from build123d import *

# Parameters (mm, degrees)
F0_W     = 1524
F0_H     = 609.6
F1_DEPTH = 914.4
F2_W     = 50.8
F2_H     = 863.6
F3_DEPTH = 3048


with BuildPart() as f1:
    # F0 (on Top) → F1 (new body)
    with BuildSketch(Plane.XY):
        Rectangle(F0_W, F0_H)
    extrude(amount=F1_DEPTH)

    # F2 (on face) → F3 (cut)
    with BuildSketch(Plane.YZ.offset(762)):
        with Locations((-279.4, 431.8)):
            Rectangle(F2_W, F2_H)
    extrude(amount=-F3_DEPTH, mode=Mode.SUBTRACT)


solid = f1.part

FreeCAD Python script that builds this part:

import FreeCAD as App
import Part
import Sketcher

V = App.Vector
Q = App.Units.Quantity


def add_polygon(sketch, points):
    """Adds a closed chain of lines whose ends are joined by coincident constraints."""
    first, n = sketch.GeometryCount, len(points)
    for a, b in zip(points, points[1:] + points[:1]):
        sketch.addGeometry(Part.LineSegment(App.Vector(*a, 0), App.Vector(*b, 0)), False)
    for i in range(n):
        sketch.addConstraint(Sketcher.Constraint("Coincident", first + i, 2, first + (i + 1) % n, 1))

doc = App.newDocument("Part")
body = doc.addObject("PartDesign::Body", "Body")

# Sketch on XY plane
sketch1 = body.newObject("Sketcher::SketchObject", "Sketch")
sketch1.AttachmentSupport = (doc.getObject("XY_Plane"), [""])
sketch1.MapMode = "FlatFace"
add_polygon(sketch1, [(-762, 305), (-762, -305), (762, -305), (762, 305)])  # lines 0-3
sketch1.addConstraint([
    Sketcher.Constraint("Vertical", 0),
    Sketcher.Constraint("Horizontal", 1),
    Sketcher.Constraint("Vertical", 2),
    Sketcher.Constraint("Horizontal", 3),
    Sketcher.Constraint("Symmetric", 0, 2, 2, 2, -1, 1),
    Sketcher.Constraint("DistanceX", 1, 1, 1, 2, Q("60 in")),
    Sketcher.Constraint("DistanceY", 0, 2, 0, 1, Q("24 in")),
])
pad1 = body.newObject("PartDesign::Pad", "Pad")
pad1.Profile = sketch1
pad1.Length = Q("36 in")

# Sketch on YZ plane
sketch2 = body.newObject("Sketcher::SketchObject", "Sketch001")
sketch2.AttachmentSupport = (doc.getObject("YZ_Plane"), [""])
sketch2.MapMode = "FlatFace"
sketch2.AttachmentOffset = App.Placement(V(0, 0, 30 * 25.4), App.Rotation())
add_polygon(sketch2, [(-305, 864), (-305, 0), (-254, 0), (-254, 864)])  # lines 0-3
sketch2.addConstraint([
    Sketcher.Constraint("Vertical", 0),
    Sketcher.Constraint("Horizontal", 1),
    Sketcher.Constraint("Vertical", 2),
    Sketcher.Constraint("Horizontal", 3),
    Sketcher.Constraint("PointOnObject", 0, 2, -1),
    Sketcher.Constraint("DistanceX", 1, 1, 1, 2, Q("2 in")),
    Sketcher.Constraint("DistanceY", 0, 2, 0, 1, Q("34 in")),
    Sketcher.Constraint("DistanceX", 0, 2, -1, 1, Q("12 in")),
])
pocket1 = body.newObject("PartDesign::Pocket", "Pocket")
pocket1.Profile = sketch2
pocket1.Length = Q("120 in")

doc.recompute()
